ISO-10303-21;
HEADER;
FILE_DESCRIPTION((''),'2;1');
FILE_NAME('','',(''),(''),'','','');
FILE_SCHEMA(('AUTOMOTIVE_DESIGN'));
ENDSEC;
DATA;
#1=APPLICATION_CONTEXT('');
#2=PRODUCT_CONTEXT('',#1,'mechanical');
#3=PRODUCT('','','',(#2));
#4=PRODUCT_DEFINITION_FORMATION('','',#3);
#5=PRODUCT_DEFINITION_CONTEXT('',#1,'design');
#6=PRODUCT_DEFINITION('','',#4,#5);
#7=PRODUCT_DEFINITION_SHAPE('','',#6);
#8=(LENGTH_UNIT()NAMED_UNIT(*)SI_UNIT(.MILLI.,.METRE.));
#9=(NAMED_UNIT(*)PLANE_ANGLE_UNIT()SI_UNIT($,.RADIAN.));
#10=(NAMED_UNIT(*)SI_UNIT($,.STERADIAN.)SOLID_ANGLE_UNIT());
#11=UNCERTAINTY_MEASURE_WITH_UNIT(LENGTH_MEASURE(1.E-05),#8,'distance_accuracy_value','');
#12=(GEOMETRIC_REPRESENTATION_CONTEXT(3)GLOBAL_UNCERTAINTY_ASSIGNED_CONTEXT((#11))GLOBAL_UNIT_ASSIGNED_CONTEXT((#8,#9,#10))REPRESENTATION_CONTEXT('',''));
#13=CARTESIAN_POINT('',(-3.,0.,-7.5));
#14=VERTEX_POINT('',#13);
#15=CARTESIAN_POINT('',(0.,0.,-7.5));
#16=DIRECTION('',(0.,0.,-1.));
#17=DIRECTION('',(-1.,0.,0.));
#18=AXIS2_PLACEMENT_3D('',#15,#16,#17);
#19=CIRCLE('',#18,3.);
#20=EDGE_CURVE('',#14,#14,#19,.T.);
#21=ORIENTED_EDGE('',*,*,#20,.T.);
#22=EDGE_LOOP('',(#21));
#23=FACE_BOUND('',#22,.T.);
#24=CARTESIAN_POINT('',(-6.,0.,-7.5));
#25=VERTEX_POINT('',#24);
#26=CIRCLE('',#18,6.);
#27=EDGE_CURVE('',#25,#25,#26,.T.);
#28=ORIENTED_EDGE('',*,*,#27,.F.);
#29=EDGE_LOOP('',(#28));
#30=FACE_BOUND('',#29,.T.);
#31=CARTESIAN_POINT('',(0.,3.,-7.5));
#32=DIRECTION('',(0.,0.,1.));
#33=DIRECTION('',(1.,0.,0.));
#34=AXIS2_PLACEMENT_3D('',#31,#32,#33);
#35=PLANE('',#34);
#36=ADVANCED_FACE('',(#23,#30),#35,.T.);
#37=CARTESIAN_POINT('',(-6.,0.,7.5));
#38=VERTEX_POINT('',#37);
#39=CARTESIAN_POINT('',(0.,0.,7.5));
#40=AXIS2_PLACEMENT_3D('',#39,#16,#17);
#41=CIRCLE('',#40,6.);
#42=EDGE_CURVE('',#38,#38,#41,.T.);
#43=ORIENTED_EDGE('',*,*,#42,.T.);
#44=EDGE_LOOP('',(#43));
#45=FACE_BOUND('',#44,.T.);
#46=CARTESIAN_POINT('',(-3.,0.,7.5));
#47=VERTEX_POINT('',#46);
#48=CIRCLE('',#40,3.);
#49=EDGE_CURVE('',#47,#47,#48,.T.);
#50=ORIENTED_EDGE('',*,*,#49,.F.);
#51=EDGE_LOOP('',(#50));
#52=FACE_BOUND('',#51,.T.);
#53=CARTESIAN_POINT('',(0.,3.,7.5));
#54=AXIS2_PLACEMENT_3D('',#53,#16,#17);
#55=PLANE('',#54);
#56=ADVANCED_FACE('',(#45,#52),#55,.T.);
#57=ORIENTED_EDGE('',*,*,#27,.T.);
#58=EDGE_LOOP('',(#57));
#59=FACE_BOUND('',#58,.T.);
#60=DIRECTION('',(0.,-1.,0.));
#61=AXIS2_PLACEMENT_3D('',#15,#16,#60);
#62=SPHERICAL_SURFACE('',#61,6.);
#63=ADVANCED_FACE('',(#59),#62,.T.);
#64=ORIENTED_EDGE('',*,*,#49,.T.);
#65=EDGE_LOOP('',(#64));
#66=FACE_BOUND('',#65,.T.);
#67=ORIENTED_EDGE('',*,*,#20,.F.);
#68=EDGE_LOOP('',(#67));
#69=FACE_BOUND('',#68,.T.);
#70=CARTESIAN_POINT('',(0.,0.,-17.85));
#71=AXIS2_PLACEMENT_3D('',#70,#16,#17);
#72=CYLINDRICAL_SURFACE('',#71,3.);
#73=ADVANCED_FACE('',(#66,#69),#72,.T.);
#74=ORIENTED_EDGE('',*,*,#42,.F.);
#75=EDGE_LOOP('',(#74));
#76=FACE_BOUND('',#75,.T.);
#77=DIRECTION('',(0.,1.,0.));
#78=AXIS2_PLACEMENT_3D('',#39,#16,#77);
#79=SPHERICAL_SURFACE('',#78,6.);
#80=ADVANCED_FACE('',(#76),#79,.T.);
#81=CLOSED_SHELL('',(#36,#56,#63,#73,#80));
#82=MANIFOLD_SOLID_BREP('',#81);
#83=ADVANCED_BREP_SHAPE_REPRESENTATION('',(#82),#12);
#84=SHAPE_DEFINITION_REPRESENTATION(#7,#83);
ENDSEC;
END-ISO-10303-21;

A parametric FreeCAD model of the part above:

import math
import FreeCAD as App
import Part
import Sketcher

V = App.Vector
Q = App.Units.Quantity

doc = App.newDocument("Part")
body = doc.addObject("PartDesign::Body", "Body")

sketch1 = body.newObject("Sketcher::SketchObject", "Sketch")
sketch1.AttachmentSupport = (doc.getObject("YZ_Plane"), [""])
sketch1.MapMode = "FlatFace"
sketch1.addGeometry(Part.LineSegment(V(3, -7.5, 0), V(3, 7.5, 0)), False)
sketch1.addGeometry(Part.LineSegment(V(3, 7.5, 0), V(6, 7.5, 0)), False)
sketch1.addGeometry(Part.ArcOfCircle(Part.Circle(V(0, 7.5, 0), V(0, 0, 1), 6), math.radians(0), math.radians(90)), False)
sketch1.addGeometry(Part.LineSegment(V(0, 13.5, 0), V(0, -13.5, 0)), False)
sketch1.addGeometry(Part.ArcOfCircle(Part.Circle(V(0, -7.5, 0), V(0, 0, 1), 6), math.radians(-90), math.radians(0)), False)
sketch1.addGeometry(Part.LineSegment(V(6, -7.5, 0), V(3, -7.5, 0)), False)
sketch1.addConstraint(Sketcher.Constraint("Coincident", 0, 2, 1, 1))
sketch1.addConstraint(Sketcher.Constraint("Coincident", 1, 2, 2, 1))
sketch1.addConstraint(Sketcher.Constraint("Coincident", 2, 2, 3, 1))
sketch1.addConstraint(Sketcher.Constraint("Coincident", 3, 2, 4, 1))
sketch1.addConstraint(Sketcher.Constraint("Coincident", 4, 2, 5, 1))
sketch1.addConstraint(Sketcher.Constraint("Coincident", 5, 2, 0, 1))
sketch1.addConstraint(Sketcher.Constraint("Vertical", 0))
sketch1.addConstraint(Sketcher.Constraint("Horizontal", 1))
sketch1.addConstraint(Sketcher.Constraint("Vertical", 3))
sketch1.addConstraint(Sketcher.Constraint("Horizontal", 5))
sketch1.addConstraint(Sketcher.Constraint("Equal", 2, 4))
sketch1.addConstraint(Sketcher.Constraint("Symmetric", 2, 3, 4, 3, -1, 1))
sketch1.addConstraint(Sketcher.Constraint("Symmetric", 1, 2, 4, 2, -1))
sketch1.addConstraint(Sketcher.Constraint("PointOnObject", 2, 2, -2))
sketch1.addConstraint(Sketcher.Constraint("Horizontal", 2, 3, 0, 2))
sketch1.addConstraint(Sketcher.Constraint("Radius", 2, Q("6 mm")))
sketch1.addConstraint(Sketcher.Constraint("DistanceX", 1, 1, 1, 2, Q("3 mm")))
sketch1.addConstraint(Sketcher.Constraint("DistanceY", 0, 1, 0, 2, Q("15 mm")))
revolution = body.newObject("PartDesign::Revolution", "Revolution")
revolution.Profile = sketch1
revolution.ReferenceAxis = (sketch1, ["V_Axis"])
revolution.Angle = 360

doc.recompute()
